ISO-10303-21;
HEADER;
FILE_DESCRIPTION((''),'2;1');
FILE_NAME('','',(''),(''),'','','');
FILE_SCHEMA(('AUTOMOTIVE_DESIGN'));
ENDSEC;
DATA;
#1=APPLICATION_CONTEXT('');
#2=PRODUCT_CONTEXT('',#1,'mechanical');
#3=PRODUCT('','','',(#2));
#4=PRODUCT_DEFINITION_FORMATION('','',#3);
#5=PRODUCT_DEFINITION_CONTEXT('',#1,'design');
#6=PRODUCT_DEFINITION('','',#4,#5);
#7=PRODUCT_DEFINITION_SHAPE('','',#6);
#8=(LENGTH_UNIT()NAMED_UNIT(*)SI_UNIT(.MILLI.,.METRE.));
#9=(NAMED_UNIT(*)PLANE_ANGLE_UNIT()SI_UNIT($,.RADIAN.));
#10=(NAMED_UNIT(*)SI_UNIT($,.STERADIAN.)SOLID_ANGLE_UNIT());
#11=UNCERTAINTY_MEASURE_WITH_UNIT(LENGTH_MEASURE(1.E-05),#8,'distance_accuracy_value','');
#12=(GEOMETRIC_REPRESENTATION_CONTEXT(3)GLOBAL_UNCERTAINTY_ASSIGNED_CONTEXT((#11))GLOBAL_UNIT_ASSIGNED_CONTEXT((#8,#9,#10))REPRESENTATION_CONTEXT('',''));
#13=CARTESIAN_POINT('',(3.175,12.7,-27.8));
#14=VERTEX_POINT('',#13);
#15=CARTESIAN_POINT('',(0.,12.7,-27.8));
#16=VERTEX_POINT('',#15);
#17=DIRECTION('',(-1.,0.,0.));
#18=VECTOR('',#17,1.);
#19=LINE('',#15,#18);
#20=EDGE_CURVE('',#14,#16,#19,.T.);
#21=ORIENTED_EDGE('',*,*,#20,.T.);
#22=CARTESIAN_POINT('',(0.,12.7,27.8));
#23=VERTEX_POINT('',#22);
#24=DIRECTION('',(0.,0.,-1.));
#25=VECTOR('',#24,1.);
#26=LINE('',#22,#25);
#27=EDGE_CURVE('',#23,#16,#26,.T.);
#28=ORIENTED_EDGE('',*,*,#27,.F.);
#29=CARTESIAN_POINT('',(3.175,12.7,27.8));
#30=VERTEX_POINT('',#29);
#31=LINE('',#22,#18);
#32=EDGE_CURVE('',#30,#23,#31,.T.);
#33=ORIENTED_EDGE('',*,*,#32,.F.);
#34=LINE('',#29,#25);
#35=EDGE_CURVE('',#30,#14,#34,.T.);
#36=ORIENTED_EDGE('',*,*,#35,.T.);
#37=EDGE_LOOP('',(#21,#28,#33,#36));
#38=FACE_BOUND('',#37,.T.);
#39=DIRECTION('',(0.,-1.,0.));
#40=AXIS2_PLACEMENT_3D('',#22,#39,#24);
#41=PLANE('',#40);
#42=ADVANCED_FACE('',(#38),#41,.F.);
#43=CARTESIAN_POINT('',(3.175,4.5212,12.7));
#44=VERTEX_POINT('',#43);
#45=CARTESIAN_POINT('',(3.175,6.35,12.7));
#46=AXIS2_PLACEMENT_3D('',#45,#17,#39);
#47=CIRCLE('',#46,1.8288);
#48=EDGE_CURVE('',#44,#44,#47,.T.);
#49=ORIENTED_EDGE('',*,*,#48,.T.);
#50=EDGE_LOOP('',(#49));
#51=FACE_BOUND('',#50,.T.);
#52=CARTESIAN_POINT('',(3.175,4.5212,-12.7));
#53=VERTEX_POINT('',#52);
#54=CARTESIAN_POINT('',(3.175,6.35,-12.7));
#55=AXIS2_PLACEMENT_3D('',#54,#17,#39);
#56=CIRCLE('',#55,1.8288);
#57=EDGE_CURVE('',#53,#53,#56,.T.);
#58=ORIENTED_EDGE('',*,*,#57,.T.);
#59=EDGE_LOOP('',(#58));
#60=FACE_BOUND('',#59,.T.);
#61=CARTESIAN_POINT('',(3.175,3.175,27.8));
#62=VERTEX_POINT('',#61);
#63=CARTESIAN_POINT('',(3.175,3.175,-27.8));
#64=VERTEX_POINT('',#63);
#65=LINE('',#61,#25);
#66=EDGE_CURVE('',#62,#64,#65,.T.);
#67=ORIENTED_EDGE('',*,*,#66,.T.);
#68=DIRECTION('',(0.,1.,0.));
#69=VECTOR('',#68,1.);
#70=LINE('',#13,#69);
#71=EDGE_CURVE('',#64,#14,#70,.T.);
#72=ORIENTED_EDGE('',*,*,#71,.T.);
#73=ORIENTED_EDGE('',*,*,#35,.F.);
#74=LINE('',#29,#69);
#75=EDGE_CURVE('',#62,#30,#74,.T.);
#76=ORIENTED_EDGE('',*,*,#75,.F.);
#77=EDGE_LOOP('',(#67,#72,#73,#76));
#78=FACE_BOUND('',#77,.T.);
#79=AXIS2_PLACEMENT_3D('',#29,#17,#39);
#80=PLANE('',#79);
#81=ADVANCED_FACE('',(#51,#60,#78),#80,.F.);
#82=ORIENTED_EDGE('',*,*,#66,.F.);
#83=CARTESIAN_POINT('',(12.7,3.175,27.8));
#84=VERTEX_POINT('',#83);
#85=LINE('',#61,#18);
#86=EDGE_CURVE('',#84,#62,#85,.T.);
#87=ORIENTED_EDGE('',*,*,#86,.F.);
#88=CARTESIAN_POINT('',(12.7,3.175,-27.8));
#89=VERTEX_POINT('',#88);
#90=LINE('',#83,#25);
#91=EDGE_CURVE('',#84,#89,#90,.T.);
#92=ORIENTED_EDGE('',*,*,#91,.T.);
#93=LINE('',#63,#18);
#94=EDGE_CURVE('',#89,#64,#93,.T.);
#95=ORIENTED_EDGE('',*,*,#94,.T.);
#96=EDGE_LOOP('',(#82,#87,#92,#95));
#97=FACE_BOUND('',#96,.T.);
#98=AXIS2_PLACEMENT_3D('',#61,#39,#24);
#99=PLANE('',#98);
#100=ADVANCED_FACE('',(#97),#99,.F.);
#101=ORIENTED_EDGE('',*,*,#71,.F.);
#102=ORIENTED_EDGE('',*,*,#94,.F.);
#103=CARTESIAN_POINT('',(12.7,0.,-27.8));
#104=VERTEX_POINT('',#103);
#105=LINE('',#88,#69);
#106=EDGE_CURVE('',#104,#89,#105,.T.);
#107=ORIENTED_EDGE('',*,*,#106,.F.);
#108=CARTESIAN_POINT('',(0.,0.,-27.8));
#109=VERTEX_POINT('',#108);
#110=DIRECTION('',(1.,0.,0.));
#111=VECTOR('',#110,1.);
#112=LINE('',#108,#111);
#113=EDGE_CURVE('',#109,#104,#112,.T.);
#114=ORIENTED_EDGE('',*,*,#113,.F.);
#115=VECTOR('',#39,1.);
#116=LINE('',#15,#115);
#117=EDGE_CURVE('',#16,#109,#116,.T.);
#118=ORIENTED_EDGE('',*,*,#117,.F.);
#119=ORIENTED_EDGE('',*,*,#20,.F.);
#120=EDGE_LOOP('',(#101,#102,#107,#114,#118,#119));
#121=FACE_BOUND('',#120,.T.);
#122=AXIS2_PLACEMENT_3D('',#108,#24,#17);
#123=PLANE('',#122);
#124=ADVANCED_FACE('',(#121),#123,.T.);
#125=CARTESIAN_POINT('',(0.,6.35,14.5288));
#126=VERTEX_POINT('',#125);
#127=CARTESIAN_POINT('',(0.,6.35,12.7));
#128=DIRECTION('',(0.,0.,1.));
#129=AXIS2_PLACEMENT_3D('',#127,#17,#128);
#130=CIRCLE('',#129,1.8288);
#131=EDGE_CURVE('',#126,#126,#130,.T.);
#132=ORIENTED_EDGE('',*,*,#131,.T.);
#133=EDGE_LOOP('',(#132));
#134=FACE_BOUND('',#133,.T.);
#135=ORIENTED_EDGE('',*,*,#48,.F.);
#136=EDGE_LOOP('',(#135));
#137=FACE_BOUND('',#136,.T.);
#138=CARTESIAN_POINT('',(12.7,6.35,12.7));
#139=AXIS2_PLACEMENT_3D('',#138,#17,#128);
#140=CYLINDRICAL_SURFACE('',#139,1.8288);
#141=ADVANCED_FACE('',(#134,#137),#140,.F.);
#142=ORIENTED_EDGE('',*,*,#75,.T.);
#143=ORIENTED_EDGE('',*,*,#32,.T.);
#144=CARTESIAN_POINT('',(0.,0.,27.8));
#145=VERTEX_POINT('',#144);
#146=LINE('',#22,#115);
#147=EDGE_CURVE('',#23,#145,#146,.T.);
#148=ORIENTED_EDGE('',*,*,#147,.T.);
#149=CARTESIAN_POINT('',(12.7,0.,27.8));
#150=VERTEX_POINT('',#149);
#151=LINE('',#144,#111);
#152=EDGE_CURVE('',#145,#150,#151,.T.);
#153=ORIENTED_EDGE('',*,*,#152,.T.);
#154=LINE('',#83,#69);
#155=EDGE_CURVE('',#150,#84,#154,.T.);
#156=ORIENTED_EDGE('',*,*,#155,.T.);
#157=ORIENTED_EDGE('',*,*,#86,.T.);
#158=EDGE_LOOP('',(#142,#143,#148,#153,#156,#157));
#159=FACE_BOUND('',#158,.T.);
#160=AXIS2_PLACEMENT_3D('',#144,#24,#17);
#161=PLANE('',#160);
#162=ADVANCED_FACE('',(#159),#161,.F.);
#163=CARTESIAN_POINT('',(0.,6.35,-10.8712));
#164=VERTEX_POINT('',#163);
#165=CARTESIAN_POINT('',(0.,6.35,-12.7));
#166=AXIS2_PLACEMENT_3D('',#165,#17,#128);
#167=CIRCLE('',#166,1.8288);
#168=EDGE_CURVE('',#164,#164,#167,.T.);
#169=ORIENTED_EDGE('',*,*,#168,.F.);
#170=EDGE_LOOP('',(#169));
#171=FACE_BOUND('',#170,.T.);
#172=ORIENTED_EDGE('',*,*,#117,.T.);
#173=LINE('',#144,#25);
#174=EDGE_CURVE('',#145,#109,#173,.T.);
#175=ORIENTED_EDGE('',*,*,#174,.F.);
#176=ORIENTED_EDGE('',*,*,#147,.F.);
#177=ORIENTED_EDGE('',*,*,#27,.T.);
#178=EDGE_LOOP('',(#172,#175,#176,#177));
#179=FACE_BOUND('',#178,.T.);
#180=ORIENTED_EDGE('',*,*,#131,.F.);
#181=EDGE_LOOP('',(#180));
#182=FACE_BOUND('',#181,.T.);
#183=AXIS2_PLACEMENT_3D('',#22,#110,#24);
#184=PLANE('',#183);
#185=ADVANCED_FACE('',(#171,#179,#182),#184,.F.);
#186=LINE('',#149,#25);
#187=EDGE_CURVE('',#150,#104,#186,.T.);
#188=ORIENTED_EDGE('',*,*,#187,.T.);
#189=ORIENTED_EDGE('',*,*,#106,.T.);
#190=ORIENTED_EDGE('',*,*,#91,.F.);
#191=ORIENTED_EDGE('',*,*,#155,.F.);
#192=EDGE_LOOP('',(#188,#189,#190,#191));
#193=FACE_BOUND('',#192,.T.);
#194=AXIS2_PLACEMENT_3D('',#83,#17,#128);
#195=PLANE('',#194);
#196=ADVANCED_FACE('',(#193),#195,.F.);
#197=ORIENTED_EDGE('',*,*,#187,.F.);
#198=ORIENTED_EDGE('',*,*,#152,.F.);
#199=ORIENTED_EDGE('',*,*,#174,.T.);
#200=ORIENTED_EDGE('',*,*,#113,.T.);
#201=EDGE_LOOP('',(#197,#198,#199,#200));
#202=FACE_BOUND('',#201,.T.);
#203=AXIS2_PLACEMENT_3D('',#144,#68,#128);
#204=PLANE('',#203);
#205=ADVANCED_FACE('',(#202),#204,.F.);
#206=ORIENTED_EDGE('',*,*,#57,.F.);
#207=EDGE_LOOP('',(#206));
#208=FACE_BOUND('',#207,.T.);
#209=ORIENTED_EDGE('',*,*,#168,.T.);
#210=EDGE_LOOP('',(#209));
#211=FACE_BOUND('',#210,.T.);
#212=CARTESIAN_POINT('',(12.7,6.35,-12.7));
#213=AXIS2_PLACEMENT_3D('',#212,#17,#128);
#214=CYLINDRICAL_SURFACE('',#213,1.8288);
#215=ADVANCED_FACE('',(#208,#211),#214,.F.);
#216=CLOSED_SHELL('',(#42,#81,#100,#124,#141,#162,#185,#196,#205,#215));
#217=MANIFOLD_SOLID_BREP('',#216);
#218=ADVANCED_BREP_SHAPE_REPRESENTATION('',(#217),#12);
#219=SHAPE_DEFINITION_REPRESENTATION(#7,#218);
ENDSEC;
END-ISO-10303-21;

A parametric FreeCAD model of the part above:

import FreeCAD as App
import Part
import Sketcher
Q = App.Units.Quantity

doc = App.newDocument("Part")
body = doc.addObject("PartDesign::Body", "Body")

# Sketch on XY plane
sketch1 = body.newObject("Sketcher::SketchObject", "Sketch")
sketch1.AttachmentSupport = (doc.getObject("XY_Plane"), [""])
sketch1.MapMode = "FlatFace"
sketch1.addGeometry([
    Part.LineSegment(App.Vector(0, 12.7, 0), App.Vector(0, 0, 0)),  # 0
    Part.LineSegment(App.Vector(0, 0, 0), App.Vector(12.7, 0, 0)),  # 1
    Part.LineSegment(App.Vector(12.7, 0, 0), App.Vector(12.7, 3.2, 0)),  # 2
    Part.LineSegment(App.Vector(12.7, 3.2, 0), App.Vector(3.2, 3.2, 0)),  # 3
    Part.LineSegment(App.Vector(3.2, 3.2, 0), App.Vector(3.2, 12.7, 0)),  # 4
    Part.LineSegment(App.Vector(3.2, 12.7, 0), App.Vector(0, 12.7, 0)),  # 5
], False)
sketch1.addConstraint([
    Sketcher.Constraint("Coincident", 0, 2, 1, 1),
    Sketcher.Constraint("Coincident", 1, 2, 2, 1),
    Sketcher.Constraint("Coincident", 2, 2, 3, 1),
    Sketcher.Constraint("Coincident", 3, 2, 4, 1),
    Sketcher.Constraint("Coincident", 4, 2, 5, 1),
    Sketcher.Constraint("Coincident", 5, 2, 0, 1),
    Sketcher.Constraint("Vertical", 0),
    Sketcher.Constraint("Horizontal", 1),
    Sketcher.Constraint("Vertical", 2),
    Sketcher.Constraint("Horizontal", 3),
    Sketcher.Constraint("Vertical", 4),
    Sketcher.Constraint("Horizontal", 5),
    Sketcher.Constraint("Coincident", 0, 2, -1, 1),
    Sketcher.Constraint("Equal", 1, 0),
    Sketcher.Constraint("Equal", 5, 2),
    Sketcher.Constraint("DistanceX", 1, 1, 1, 2, Q("0.5 in")),
    Sketcher.Constraint("DistanceX", 3, 2, 3, 1, Q("0.375 in")),
])
pad1 = body.newObject("PartDesign::Pad", "Pad")
pad1.Profile = sketch1
pad1.Length = 55.6
pad1.Midplane = True

# Sketch on YZ plane
sketch2 = body.newObject("Sketcher::SketchObject", "Sketch001")
sketch2.AttachmentSupport = (doc.getObject("YZ_Plane"), [""])
sketch2.MapMode = "FlatFace"
sketch2.addGeometry([
    Part.Circle(App.Vector(6.3, 12.7, 0), App.Vector(0, 0, 1), 1.8),
    Part.Circle(App.Vector(6.3, -12.7, 0), App.Vector(0, 0, 1), 1.8),
], False)
sketch2.addConstraint([
    Sketcher.Constraint("Equal", 0, 1),
    Sketcher.Constraint("Symmetric", 0, 3, 1, 3, -1),
    Sketcher.Constraint("Diameter", 0, Q("0.144 in")),
    Sketcher.Constraint("DistanceY", 1, 3, 0, 3, Q("1 in")),
    Sketcher.Constraint("DistanceX", -1, 1, 0, 3, Q("0.25 in")),
])
pocket1 = body.newObject("PartDesign::Pocket", "Pocket")
pocket1.Profile = sketch2
pocket1.Type = "ThroughAll"
pocket1.Reversed = True

doc.recompute()
